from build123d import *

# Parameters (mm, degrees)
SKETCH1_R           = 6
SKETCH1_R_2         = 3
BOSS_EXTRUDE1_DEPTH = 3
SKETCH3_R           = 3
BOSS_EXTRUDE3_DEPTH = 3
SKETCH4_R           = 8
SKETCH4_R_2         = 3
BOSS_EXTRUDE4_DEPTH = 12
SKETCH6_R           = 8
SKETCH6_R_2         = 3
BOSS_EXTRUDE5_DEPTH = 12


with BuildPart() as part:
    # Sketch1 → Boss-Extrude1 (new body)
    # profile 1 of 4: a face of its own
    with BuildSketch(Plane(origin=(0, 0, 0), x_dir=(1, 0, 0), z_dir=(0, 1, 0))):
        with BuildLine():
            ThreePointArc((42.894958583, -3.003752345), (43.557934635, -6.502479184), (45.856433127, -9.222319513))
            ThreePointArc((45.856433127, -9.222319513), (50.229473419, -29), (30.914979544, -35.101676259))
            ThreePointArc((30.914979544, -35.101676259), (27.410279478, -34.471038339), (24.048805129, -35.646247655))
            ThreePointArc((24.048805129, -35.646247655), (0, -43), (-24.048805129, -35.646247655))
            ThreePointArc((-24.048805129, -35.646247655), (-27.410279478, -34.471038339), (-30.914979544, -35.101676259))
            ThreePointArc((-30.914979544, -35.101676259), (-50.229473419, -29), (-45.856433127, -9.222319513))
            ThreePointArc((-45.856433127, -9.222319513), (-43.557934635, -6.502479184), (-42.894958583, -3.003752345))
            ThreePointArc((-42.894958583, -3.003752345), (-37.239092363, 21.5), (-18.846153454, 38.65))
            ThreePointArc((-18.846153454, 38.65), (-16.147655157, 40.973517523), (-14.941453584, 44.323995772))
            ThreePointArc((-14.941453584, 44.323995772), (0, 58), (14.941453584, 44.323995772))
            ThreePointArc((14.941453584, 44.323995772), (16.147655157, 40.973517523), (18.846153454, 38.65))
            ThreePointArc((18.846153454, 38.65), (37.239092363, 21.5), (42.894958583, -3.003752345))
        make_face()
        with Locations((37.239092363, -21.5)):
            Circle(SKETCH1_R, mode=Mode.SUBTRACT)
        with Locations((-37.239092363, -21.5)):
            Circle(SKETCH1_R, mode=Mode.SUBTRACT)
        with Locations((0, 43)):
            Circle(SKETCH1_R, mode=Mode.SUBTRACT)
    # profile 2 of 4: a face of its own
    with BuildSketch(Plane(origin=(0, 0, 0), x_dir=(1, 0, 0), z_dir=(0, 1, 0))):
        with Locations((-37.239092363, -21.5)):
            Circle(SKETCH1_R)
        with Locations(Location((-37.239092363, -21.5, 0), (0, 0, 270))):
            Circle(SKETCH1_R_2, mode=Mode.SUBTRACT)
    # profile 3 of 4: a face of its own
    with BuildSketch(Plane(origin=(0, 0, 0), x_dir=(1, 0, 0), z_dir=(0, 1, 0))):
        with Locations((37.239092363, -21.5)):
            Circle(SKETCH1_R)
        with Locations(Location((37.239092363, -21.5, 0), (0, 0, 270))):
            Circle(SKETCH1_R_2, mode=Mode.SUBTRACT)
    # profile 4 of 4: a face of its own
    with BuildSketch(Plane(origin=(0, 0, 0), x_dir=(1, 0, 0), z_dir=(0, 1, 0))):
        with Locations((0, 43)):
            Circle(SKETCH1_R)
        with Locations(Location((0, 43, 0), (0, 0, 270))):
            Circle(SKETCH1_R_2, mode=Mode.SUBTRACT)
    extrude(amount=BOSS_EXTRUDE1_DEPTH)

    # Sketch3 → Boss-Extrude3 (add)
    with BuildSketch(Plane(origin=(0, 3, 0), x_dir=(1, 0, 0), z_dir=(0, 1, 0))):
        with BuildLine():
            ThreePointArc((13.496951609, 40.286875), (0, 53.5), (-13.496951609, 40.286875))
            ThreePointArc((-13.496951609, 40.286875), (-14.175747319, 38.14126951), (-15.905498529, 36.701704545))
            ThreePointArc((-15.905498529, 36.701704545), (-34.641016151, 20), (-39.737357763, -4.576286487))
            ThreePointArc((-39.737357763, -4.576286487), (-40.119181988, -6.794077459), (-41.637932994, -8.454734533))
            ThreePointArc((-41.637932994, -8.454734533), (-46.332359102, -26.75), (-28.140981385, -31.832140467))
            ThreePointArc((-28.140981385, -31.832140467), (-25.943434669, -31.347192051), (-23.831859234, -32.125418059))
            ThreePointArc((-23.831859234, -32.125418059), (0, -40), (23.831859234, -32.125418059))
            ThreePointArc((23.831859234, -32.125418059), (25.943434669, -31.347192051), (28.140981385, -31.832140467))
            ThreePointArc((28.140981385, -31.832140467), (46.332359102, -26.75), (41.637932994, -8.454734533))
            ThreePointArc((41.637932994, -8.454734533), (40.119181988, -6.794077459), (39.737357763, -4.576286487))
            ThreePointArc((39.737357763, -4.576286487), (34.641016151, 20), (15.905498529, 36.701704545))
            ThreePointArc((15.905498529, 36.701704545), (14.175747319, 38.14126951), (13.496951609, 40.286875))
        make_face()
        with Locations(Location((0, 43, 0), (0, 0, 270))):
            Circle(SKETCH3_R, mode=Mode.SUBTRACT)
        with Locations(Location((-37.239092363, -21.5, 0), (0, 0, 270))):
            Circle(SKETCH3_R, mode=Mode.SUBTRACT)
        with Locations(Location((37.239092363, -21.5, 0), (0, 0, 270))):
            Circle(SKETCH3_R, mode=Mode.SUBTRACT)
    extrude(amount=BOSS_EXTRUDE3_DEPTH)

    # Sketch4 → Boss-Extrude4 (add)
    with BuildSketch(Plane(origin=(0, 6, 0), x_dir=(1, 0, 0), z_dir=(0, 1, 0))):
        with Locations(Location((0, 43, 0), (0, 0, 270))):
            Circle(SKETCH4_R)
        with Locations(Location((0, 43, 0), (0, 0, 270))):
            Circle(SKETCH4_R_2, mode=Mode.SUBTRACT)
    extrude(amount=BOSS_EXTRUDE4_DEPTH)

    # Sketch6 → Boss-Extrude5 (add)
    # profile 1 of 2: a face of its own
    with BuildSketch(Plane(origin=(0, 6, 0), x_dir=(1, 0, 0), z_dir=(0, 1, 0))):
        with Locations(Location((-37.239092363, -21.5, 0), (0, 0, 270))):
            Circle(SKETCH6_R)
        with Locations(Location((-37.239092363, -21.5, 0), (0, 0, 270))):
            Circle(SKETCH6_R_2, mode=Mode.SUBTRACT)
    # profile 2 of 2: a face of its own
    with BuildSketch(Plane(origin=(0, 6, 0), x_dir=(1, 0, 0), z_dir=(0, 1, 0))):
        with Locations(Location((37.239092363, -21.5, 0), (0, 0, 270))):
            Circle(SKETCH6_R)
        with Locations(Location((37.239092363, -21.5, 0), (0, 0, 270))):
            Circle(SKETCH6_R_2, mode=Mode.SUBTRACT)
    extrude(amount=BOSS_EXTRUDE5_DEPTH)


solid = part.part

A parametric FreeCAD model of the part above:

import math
import FreeCAD as App
import Part
import Sketcher

V = App.Vector

doc = App.newDocument("Part")
body = doc.addObject("PartDesign::Body", "Body")

sketch1 = body.newObject("Sketcher::SketchObject", "Sketch")
sketch1.AttachmentSupport = (doc.getObject("XZ_Plane"), [""])
sketch1.MapMode = "FlatFace"
sketch1.addGeometry([
    Part.ArcOfCircle(Part.Circle(V(49.877859, 3.492735, 0), V(0, 0, 1), 7), math.radians(125.063881), math.radians(184.005642)),
    Part.ArcOfCircle(Part.Circle(V(0, 0, 0), V(0, 0, 1), 43), math.radians(-64.005642), math.radians(4.005642)),
    Part.ArcOfCircle(Part.Circle(V(21.914132, -44.94186, 0), V(0, 0, 1), 7), math.radians(115.994358), math.radians(174.936119)),
    Part.ArcOfCircle(Part.Circle(V(0, -43, 0), V(0, 0, 1), 15), math.radians(-174.936119), math.radians(-5.063881)),
    Part.ArcOfCircle(Part.Circle(V(-21.914132, -44.94186, 0), V(0, 0, 1), 7), math.radians(5.063881), math.radians(64.005642)),
    Part.ArcOfCircle(Part.Circle(V(0, 0, 0), V(0, 0, 1), 43), math.radians(175.994358), math.radians(244.005642)),
    Part.ArcOfCircle(Part.Circle(V(-49.877859, 3.492735, 0), V(0, 0, 1), 7), math.radians(-4.005642), math.radians(54.936119)),
    Part.ArcOfCircle(Part.Circle(V(-37.239092, 21.5, 0), V(0, 0, 1), 15), math.radians(65.063881), math.radians(234.936119)),
    Part.ArcOfCircle(Part.Circle(V(-27.963727, 41.449125, 0), V(0, 0, 1), 7), math.radians(-114.936119), math.radians(-55.994358)),
    Part.ArcOfCircle(Part.Circle(V(0, 0, 0), V(0, 0, 1), 43), math.radians(55.994358), math.radians(124.005642)),
    Part.ArcOfCircle(Part.Circle(V(27.963727, 41.449125, 0), V(0, 0, 1), 7), math.radians(-124.005642), math.radians(-65.063881)),
    Part.ArcOfCircle(Part.Circle(V(37.239092, 21.5, 0), V(0, 0, 1), 15), math.radians(-54.936119), math.radians(114.936119)),
    Part.Circle(V(37.239092, 21.5, 0), V(0, 0, 1), 3),
    Part.Circle(V(-37.239092, 21.5, 0), V(0, 0, 1), 3),
    Part.Circle(V(0, -43, 0), V(0, 0, 1), 3),
], False)
sketch1.addConstraint([
    Sketcher.Constraint("Coincident", 0, 2, 1, 2),
    Sketcher.Constraint("Coincident", 1, 1, 2, 1),
    Sketcher.Constraint("Coincident", 2, 2, 3, 2),
    Sketcher.Constraint("Coincident", 3, 1, 4, 1),
    Sketcher.Constraint("Coincident", 4, 2, 5, 2),
    Sketcher.Constraint("Coincident", 5, 1, 6, 1),
    Sketcher.Constraint("Coincident", 6, 2, 7, 2),
    Sketcher.Constraint("Coincident", 7, 1, 8, 1),
    Sketcher.Constraint("Coincident", 8, 2, 9, 2),
    Sketcher.Constraint("Coincident", 9, 1, 10, 1),
    Sketcher.Constraint("Coincident", 10, 2, 11, 2),
    Sketcher.Constraint("Coincident", 11, 1, 0, 1),
    Sketcher.Constraint("Coincident", 1, 3, -1, 1),
    Sketcher.Constraint("Coincident", 5, 3, -1, 1),
    Sketcher.Constraint("Coincident", 9, 3, -1, 1),
    Sketcher.Constraint("Coincident", 12, 3, 11, 3),
    Sketcher.Constraint("Coincident", 13, 3, 7, 3),
    Sketcher.Constraint("Coincident", 14, 3, 3, 3),
    Sketcher.Constraint("PointOnObject", 3, 3, -2),
    Sketcher.Constraint("Diameter", 12, 6.0),
    Sketcher.Constraint("Diameter", 13, 6.0),
    Sketcher.Constraint("Diameter", 14, 6.0),
    Sketcher.Constraint("Radius", 0, 7.0),
    Sketcher.Constraint("Radius", 1, 43.0),
    Sketcher.Constraint("Radius", 2, 7.0),
    Sketcher.Constraint("Radius", 3, 15.0),
    Sketcher.Constraint("Radius", 4, 7.0),
    Sketcher.Constraint("Radius", 5, 43.0),
    Sketcher.Constraint("Radius", 6, 7.0),
    Sketcher.Constraint("Radius", 7, 15.0),
    Sketcher.Constraint("Radius", 8, 7.0),
    Sketcher.Constraint("Radius", 9, 43.0),
    Sketcher.Constraint("Radius", 10, 7.0),
    Sketcher.Constraint("Radius", 11, 15.0),
    Sketcher.Constraint("DistanceY", 3, 3, -1, 1, 43.0),
    Sketcher.Constraint("DistanceY", -1, 1, 7, 3, 21.5),
    Sketcher.Constraint("DistanceY", -1, 1, 11, 3, 21.5),
    Sketcher.Constraint("DistanceY", 1, 1, -1, 1, 38.65),
    Sketcher.Constraint("DistanceY", 4, 2, -1, 1, 38.65),
    Sketcher.Constraint("DistanceX", 0, 2, 0, 3, 6.9829),
    Sketcher.Constraint("DistanceX", 2, 2, 1, 1, 3.9047),
    Sketcher.Constraint("DistanceX", 4, 2, 3, 1, 3.9047),
    Sketcher.Constraint("DistanceX", 6, 3, 5, 1, 6.9829),
    Sketcher.Constraint("DistanceX", -1, 1, 0, 3, 49.877859),
    Sketcher.Constraint("DistanceX", 6, 3, -1, 1, 49.877859),
    Sketcher.Constraint("DistanceY", -1, 1, 6, 2, 9.22232),
    Sketcher.Constraint("DistanceX", 7, 1, -1, 1, 30.91498),
    Sketcher.Constraint("DistanceX", -1, 1, 10, 2, 30.91498),
    Sketcher.Constraint("DistanceY", -1, 1, 11, 1, 9.22232),
    Sketcher.Constraint("DistanceY", 7, 1, 8, 2, 0.544571),
    Sketcher.Constraint("DistanceX", 9, 1, 10, 3, 3.914922),
])
pad1 = body.newObject("PartDesign::Pad", "Pad")
pad1.Profile = sketch1
pad1.Length = 3
pad1.Reversed = True

sketch2 = body.newObject("Sketcher::SketchObject", "Sketch001")
sketch2.AttachmentSupport = (doc.getObject("XZ_Plane"), [""])
sketch2.MapMode = "FlatFace"
sketch2.AttachmentOffset = App.Placement(V(0, 0, -3), App.Rotation())
sketch2.addGeometry([
    Part.ArcOfCircle(Part.Circle(V(0, -40, 0), V(0, 0, 1), 13.5), math.radians(-178.782373), math.radians(-1.217627)),
    Part.ArcOfCircle(Part.Circle(V(-17.496048, -40.371875, 0), V(0, 0, 1), 4), math.radians(1.217627), math.radians(66.569432)),
    Part.ArcOfCircle(Part.Circle(V(0, 0, 0), V(0, 0, 1), 40), math.radians(173.430568), math.radians(246.569432)),
    Part.ArcOfCircle(Part.Circle(V(-43.711094, 5.033915, 0), V(0, 0, 1), 4), math.radians(-6.569432), math.radians(58.782373)),
    Part.ArcOfCircle(Part.Circle(V(-34.641016, 20, 0), V(0, 0, 1), 13.5), math.radians(61.217627), math.radians(238.782373)),
    Part.ArcOfCircle(Part.Circle(V(-26.215045, 35.33796, 0), V(0, 0, 1), 4), math.radians(-118.782373), math.radians(-53.430568)),
    Part.ArcOfCircle(Part.Circle(V(0, 0, 0), V(0, 0, 1), 40), math.radians(53.430568), math.radians(126.569432)),
    Part.ArcOfCircle(Part.Circle(V(26.215045, 35.33796, 0), V(0, 0, 1), 4), math.radians(-126.569432), math.radians(-61.217627)),
    Part.ArcOfCircle(Part.Circle(V(34.641016, 20, 0), V(0, 0, 1), 13.5), math.radians(-58.782373), math.radians(118.782373)),
    Part.ArcOfCircle(Part.Circle(V(43.711094, 5.033915, 0), V(0, 0, 1), 4), math.radians(121.217627), math.radians(186.569432)),
    Part.ArcOfCircle(Part.Circle(V(0, 0, 0), V(0, 0, 1), 40), math.radians(-66.569432), math.radians(6.569432)),
    Part.ArcOfCircle(Part.Circle(V(17.496048, -40.371875, 0), V(0, 0, 1), 4), math.radians(113.430568), math.radians(178.782373)),
    Part.Circle(V(-37.239092, 21.5, 0), V(0, 0, 1), 3),
    Part.Circle(V(37.239092, 21.5, 0), V(0, 0, 1), 3),
    Part.Circle(V(0, -43, 0), V(0, 0, 1), 3),
], False)
sketch2.addConstraint([
    Sketcher.Constraint("Tangent", 0, 1, 1, 1),
    Sketcher.Constraint("Tangent", 1, 2, 2, 2),
    Sketcher.Constraint("Tangent", 2, 1, 3, 1),
    Sketcher.Constraint("Tangent", 3, 2, 4, 2),
    Sketcher.Constraint("Tangent", 4, 1, 5, 1),
    Sketcher.Constraint("Tangent", 5, 2, 6, 2),
    Sketcher.Constraint("Tangent", 6, 1, 7, 1),
    Sketcher.Constraint("Tangent", 7, 2, 8, 2),
    Sketcher.Constraint("Tangent", 8, 1, 9, 1),
    Sketcher.Constraint("Tangent", 9, 2, 10, 2),
    Sketcher.Constraint("Tangent", 10, 1, 11, 1),
    Sketcher.Constraint("Tangent", 11, 2, 0, 2),
    Sketcher.Constraint("Coincident", 2, 3, -1, 1),
    Sketcher.Constraint("Coincident", 6, 3, -1, 1),
    Sketcher.Constraint("Coincident", 10, 3, -1, 1),
    Sketcher.Constraint("Equal", 1, 3),
    Sketcher.Constraint("Equal", 0, 4),
    Sketcher.Constraint("Equal", 3, 5),
    Sketcher.Constraint("Equal", 2, 6),
    Sketcher.Constraint("Equal", 5, 7),
    Sketcher.Constraint("Equal", 4, 8),
    Sketcher.Constraint("Equal", 7, 9),
    Sketcher.Constraint("Equal", 6, 10),
    Sketcher.Constraint("Equal", 9, 11),
    Sketcher.Constraint("Equal", 12, 13),
    Sketcher.Constraint("Equal", 13, 14),
    Sketcher.Constraint("Symmetric", 4, 3, 8, 3, -2),
    Sketcher.Constraint("Symmetric", 12, 3, 13, 3, -2),
    Sketcher.Constraint("PointOnObject", 0, 3, -2),
    Sketcher.Constraint("PointOnObject", 14, 3, -2),
    Sketcher.Constraint("Diameter", 12, 6.0),
    Sketcher.Constraint("Radius", 1, 4.0),
    Sketcher.Constraint("Radius", 2, 40.0),
    Sketcher.Constraint("Radius", 0, 13.5),
    Sketcher.Constraint("DistanceY", 0, 3, -1, 1, 40.0),
    Sketcher.Constraint("DistanceY", -1, 1, 4, 3, 20.0),
    Sketcher.Constraint("DistanceY", 14, 3, -1, 1, 43.0),
    Sketcher.Constraint("DistanceY", -1, 1, 12, 3, 21.5),
    Sketcher.Constraint("DistanceX", 3, 3, 12, 3, 6.472001),
    Sketcher.Constraint("DistanceY", -1, 1, 5, 3, 35.33796),
])
pad2 = body.newObject("PartDesign::Pad", "Pad001")
pad2.Profile = sketch2
pad2.Length = 3
pad2.Reversed = True

sketch3 = body.newObject("Sketcher::SketchObject", "Sketch002")
sketch3.AttachmentSupport = (doc.getObject("XZ_Plane"), [""])
sketch3.MapMode = "FlatFace"
sketch3.AttachmentOffset = App.Placement(V(0, 0, -6), App.Rotation())
sketch3.addGeometry([
    Part.Circle(V(0, -43, 0), V(0, 0, 1), 8),
    Part.Circle(V(0, -43, 0), V(0, 0, 1), 3),
], False)
sketch3.addConstraint([
    Sketcher.Constraint("Coincident", 1, 3, 0, 3),
    Sketcher.Constraint("PointOnObject", 0, 3, -2),
    Sketcher.Constraint("Diameter", 0, 16.0),
    Sketcher.Constraint("Diameter", 1, 6.0),
    Sketcher.Constraint("DistanceY", 0, 3, -1, 1, 43.0),
])
pad3 = body.newObject("PartDesign::Pad", "Pad002")
pad3.Profile = sketch3
pad3.Length = 12
pad3.Reversed = True

sketch4 = body.newObject("Sketcher::SketchObject", "Sketch003")
sketch4.AttachmentSupport = (doc.getObject("XZ_Plane"), [""])
sketch4.MapMode = "FlatFace"
sketch4.AttachmentOffset = App.Placement(V(0, 0, -6), App.Rotation())
sketch4.addGeometry([
    Part.Circle(V(-37.239092, 21.5, 0), V(0, 0, 1), 8),
    Part.Circle(V(-37.239092, 21.5, 0), V(0, 0, 1), 3),
    Part.Circle(V(37.239092, 21.5, 0), V(0, 0, 1), 8),
    Part.Circle(V(37.239092, 21.5, 0), V(0, 0, 1), 3),
], False)
sketch4.addConstraint([
    Sketcher.Constraint("Coincident", 1, 3, 0, 3),
    Sketcher.Constraint("Coincident", 3, 3, 2, 3),
    Sketcher.Constraint("Equal", 0, 2),
    Sketcher.Constraint("Equal", 1, 3),
    Sketcher.Constraint("Symmetric", 0, 3, 2, 3, -2),
    Sketcher.Constraint("Diameter", 0, 16.0),
    Sketcher.Constraint("Diameter", 1, 6.0),
    Sketcher.Constraint("DistanceY", -1, 1, 0, 3, 21.5),
    Sketcher.Constraint("DistanceX", 0, 3, -1, 1, 37.239092),
])
pad4 = body.newObject("PartDesign::Pad", "Pad003")
pad4.Profile = sketch4
pad4.Length = 12
pad4.Reversed = True

doc.recompute()
